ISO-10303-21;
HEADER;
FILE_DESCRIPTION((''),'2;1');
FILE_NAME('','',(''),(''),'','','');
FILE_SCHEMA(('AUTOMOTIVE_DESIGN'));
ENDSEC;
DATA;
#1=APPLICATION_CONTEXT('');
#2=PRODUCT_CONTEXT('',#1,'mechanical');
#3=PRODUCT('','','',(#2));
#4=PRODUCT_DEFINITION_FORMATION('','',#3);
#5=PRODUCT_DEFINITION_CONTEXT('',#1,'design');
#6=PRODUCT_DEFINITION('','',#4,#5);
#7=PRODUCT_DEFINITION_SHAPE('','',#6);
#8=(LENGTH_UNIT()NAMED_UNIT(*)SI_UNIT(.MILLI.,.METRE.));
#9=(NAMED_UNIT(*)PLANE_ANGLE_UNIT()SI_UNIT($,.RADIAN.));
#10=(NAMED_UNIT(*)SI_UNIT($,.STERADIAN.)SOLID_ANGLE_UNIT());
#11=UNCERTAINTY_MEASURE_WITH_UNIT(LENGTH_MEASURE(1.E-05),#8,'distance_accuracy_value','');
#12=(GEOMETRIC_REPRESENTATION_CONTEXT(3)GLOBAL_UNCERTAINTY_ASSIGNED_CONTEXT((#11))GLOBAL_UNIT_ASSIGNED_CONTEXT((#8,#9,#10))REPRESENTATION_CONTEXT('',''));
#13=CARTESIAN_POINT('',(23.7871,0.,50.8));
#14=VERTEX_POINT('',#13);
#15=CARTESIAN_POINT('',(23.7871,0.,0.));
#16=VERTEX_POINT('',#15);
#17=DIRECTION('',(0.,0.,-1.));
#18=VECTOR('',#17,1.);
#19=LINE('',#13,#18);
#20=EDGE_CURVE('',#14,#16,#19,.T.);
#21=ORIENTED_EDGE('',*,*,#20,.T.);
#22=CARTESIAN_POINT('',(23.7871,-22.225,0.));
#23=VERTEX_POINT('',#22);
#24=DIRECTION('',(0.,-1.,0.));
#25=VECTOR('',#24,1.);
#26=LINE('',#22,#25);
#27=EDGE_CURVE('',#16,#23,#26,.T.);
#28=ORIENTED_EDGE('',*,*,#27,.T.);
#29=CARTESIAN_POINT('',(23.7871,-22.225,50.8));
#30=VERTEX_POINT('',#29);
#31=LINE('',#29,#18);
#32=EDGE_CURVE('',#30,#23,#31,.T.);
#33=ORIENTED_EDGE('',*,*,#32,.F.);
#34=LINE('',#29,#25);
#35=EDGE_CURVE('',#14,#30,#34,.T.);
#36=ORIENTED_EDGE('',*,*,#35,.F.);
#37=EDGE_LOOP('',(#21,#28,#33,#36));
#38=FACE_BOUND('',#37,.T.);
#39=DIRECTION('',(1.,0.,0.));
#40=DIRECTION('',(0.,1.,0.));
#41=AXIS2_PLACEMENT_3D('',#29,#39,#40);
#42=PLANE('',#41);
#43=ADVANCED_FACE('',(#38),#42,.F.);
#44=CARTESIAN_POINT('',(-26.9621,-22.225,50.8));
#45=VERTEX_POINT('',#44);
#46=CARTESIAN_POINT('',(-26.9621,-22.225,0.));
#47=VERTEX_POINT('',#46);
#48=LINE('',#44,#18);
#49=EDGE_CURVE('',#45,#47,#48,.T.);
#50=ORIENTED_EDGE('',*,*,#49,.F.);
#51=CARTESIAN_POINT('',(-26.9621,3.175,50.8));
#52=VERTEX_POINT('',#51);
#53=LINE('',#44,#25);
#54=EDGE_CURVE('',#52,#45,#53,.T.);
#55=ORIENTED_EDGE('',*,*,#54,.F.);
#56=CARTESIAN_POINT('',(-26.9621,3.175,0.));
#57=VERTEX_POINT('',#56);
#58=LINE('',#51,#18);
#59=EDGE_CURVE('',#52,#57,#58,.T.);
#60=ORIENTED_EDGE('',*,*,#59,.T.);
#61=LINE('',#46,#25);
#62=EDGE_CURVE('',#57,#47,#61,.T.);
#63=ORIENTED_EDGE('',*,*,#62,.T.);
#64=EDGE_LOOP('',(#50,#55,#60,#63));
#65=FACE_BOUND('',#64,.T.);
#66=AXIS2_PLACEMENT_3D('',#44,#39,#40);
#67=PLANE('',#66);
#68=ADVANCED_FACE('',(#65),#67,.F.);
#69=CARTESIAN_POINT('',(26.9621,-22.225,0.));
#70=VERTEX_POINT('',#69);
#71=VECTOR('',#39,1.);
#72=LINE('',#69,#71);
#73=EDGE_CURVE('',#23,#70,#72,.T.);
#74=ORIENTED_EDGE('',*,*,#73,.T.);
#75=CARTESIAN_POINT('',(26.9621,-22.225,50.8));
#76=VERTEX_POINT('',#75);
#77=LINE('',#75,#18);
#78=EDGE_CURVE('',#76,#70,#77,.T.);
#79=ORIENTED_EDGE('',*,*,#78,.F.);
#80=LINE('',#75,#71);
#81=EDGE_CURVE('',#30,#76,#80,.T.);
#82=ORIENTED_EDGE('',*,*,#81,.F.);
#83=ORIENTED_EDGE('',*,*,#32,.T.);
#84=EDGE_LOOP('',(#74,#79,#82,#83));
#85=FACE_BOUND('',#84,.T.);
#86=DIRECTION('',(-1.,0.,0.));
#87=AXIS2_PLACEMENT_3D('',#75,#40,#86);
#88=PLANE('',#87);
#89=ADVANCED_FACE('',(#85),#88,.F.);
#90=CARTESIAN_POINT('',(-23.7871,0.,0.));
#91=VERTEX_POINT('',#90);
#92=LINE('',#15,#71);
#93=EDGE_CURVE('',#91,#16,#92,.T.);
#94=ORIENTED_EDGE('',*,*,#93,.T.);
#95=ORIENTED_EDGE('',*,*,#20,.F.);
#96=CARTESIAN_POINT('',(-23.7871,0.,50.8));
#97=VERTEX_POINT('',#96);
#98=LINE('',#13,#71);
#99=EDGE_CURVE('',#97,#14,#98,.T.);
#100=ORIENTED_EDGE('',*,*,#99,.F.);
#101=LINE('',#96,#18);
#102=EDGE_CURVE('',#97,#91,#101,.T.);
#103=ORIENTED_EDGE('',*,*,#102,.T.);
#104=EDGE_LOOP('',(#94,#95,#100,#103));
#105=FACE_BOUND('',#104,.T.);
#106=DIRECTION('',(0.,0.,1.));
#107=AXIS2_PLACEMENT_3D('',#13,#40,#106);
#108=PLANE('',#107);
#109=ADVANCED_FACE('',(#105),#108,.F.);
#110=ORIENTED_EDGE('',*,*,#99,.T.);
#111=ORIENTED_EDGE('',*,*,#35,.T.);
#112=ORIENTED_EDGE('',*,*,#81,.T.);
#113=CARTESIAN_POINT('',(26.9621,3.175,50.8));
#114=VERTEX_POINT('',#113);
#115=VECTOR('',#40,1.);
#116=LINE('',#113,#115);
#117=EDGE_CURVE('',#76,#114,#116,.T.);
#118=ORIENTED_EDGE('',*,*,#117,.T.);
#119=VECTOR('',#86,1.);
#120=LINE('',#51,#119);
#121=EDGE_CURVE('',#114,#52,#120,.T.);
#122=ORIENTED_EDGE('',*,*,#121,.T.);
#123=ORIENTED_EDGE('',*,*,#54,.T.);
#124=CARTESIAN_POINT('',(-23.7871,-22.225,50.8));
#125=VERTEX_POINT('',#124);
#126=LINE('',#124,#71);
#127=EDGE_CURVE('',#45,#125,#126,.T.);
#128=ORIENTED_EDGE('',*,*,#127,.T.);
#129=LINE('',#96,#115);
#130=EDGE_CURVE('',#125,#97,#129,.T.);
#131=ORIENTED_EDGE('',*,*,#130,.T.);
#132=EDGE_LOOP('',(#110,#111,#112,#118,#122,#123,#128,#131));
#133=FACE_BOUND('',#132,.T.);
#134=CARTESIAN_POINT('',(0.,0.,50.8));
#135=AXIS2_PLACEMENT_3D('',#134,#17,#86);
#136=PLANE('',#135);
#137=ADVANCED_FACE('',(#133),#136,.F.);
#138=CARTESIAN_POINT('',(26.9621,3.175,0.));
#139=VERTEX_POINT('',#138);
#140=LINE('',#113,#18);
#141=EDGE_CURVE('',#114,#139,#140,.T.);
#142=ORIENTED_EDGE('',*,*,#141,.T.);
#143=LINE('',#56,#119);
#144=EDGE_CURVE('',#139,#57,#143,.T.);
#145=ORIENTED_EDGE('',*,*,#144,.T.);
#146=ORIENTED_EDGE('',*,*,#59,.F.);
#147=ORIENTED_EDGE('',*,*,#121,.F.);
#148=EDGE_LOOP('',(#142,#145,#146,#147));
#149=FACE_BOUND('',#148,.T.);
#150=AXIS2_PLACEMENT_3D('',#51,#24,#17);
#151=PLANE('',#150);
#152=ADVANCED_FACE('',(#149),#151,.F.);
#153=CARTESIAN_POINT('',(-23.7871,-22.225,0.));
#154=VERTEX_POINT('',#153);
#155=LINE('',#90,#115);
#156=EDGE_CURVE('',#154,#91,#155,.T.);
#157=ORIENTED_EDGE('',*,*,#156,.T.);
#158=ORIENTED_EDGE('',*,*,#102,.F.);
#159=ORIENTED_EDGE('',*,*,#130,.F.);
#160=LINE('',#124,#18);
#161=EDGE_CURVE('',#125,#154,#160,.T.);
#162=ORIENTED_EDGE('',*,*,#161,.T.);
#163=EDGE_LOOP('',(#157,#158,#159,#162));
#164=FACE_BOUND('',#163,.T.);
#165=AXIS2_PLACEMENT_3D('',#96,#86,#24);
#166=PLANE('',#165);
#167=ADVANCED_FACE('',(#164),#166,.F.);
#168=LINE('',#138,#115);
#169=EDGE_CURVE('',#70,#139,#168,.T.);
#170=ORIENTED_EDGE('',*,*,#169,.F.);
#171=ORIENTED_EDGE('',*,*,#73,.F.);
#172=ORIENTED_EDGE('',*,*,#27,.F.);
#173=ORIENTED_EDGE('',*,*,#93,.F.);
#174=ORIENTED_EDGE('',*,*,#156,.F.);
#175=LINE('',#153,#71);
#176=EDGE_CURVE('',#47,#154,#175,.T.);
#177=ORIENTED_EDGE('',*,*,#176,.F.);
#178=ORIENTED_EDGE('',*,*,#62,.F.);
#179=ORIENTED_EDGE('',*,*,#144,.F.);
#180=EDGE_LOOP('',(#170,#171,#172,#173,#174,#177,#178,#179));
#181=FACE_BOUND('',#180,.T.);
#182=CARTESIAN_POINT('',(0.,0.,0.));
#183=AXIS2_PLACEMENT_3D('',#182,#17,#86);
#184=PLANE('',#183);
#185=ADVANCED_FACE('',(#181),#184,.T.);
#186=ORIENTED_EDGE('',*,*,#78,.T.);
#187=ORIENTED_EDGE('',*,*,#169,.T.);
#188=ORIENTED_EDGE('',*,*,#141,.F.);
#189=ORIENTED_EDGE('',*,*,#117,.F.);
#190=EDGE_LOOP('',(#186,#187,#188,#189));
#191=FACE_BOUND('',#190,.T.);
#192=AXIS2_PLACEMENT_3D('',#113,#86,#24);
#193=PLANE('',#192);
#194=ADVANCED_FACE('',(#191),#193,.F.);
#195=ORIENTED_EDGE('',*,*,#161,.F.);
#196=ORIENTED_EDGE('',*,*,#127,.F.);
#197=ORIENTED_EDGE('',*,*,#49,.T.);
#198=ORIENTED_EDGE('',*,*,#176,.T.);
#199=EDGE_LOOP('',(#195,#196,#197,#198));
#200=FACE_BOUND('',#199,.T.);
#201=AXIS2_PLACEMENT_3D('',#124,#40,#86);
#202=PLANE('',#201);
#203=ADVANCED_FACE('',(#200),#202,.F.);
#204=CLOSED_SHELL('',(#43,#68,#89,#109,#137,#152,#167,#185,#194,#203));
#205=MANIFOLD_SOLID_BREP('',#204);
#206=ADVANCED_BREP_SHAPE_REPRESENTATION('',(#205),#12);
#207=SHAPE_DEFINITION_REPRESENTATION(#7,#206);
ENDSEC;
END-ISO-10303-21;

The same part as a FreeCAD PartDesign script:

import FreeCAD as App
import Part
import Sketcher
Q = App.Units.Quantity

doc = App.newDocument("Part")
body = doc.addObject("PartDesign::Body", "Body")

sketch1 = body.newObject("Sketcher::SketchObject", "Sketch")
sketch1.AttachmentSupport = (doc.getObject("XY_Plane"), [""])
sketch1.MapMode = "FlatFace"
sketch1.addGeometry(Part.LineSegment(App.Vector(-27, 3.2, 0), App.Vector(-27, -22.2, 0)), False)
sketch1.addGeometry(Part.LineSegment(App.Vector(-27, -22.2, 0), App.Vector(-23.8, -22.2, 0)), False)
sketch1.addGeometry(Part.LineSegment(App.Vector(-23.8, -22.2, 0), App.Vector(-23.8, 0, 0)), False)
sketch1.addGeometry(Part.LineSegment(App.Vector(-23.8, 0, 0), App.Vector(23.8, 0, 0)), False)
sketch1.addGeometry(Part.LineSegment(App.Vector(23.8, 0, 0), App.Vector(23.8, -22.2, 0)), False)
sketch1.addGeometry(Part.LineSegment(App.Vector(23.8, -22.2, 0), App.Vector(27, -22.2, 0)), False)
sketch1.addGeometry(Part.LineSegment(App.Vector(27, -22.2, 0), App.Vector(27, 3.2, 0)), False)
sketch1.addGeometry(Part.LineSegment(App.Vector(27, 3.2, 0), App.Vector(-27, 3.2, 0)), False)
sketch1.addConstraint(Sketcher.Constraint("Coincident", 0, 2, 1, 1))
sketch1.addConstraint(Sketcher.Constraint("Coincident", 1, 2, 2, 1))
sketch1.addConstraint(Sketcher.Constraint("Coincident", 2, 2, 3, 1))
sketch1.addConstraint(Sketcher.Constraint("Coincident", 3, 2, 4, 1))
sketch1.addConstraint(Sketcher.Constraint("Coincident", 4, 2, 5, 1))
sketch1.addConstraint(Sketcher.Constraint("Coincident", 5, 2, 6, 1))
sketch1.addConstraint(Sketcher.Constraint("Coincident", 6, 2, 7, 1))
sketch1.addConstraint(Sketcher.Constraint("Coincident", 7, 2, 0, 1))
sketch1.addConstraint(Sketcher.Constraint("Vertical", 0))
sketch1.addConstraint(Sketcher.Constraint("Horizontal", 1))
sketch1.addConstraint(Sketcher.Constraint("Vertical", 2))
sketch1.addConstraint(Sketcher.Constraint("Horizontal", 3))
sketch1.addConstraint(Sketcher.Constraint("Vertical", 4))
sketch1.addConstraint(Sketcher.Constraint("Horizontal", 5))
sketch1.addConstraint(Sketcher.Constraint("Vertical", 6))
sketch1.addConstraint(Sketcher.Constraint("Horizontal", 7))
sketch1.addConstraint(Sketcher.Constraint("Symmetric", 2, 2, 3, 2, -1, 1))
sketch1.addConstraint(Sketcher.Constraint("Symmetric", 0, 2, 5, 2, -2))
sketch1.addConstraint(Sketcher.Constraint("DistanceY", 0, 2, 0, 1, Q("1 in")))
sketch1.addConstraint(Sketcher.Constraint("DistanceX", 1, 1, 1, 2, Q("0.125 in")))
sketch1.addConstraint(Sketcher.Constraint("DistanceX", 3, 1, 3, 2, Q("1.873 in")))
sketch1.addConstraint(Sketcher.Constraint("DistanceY", 2, 1, 2, 2, Q("0.875 in")))
pad1 = body.newObject("PartDesign::Pad", "Pad")
pad1.Profile = sketch1
pad1.Length = Q("2 in")

doc.recompute()
